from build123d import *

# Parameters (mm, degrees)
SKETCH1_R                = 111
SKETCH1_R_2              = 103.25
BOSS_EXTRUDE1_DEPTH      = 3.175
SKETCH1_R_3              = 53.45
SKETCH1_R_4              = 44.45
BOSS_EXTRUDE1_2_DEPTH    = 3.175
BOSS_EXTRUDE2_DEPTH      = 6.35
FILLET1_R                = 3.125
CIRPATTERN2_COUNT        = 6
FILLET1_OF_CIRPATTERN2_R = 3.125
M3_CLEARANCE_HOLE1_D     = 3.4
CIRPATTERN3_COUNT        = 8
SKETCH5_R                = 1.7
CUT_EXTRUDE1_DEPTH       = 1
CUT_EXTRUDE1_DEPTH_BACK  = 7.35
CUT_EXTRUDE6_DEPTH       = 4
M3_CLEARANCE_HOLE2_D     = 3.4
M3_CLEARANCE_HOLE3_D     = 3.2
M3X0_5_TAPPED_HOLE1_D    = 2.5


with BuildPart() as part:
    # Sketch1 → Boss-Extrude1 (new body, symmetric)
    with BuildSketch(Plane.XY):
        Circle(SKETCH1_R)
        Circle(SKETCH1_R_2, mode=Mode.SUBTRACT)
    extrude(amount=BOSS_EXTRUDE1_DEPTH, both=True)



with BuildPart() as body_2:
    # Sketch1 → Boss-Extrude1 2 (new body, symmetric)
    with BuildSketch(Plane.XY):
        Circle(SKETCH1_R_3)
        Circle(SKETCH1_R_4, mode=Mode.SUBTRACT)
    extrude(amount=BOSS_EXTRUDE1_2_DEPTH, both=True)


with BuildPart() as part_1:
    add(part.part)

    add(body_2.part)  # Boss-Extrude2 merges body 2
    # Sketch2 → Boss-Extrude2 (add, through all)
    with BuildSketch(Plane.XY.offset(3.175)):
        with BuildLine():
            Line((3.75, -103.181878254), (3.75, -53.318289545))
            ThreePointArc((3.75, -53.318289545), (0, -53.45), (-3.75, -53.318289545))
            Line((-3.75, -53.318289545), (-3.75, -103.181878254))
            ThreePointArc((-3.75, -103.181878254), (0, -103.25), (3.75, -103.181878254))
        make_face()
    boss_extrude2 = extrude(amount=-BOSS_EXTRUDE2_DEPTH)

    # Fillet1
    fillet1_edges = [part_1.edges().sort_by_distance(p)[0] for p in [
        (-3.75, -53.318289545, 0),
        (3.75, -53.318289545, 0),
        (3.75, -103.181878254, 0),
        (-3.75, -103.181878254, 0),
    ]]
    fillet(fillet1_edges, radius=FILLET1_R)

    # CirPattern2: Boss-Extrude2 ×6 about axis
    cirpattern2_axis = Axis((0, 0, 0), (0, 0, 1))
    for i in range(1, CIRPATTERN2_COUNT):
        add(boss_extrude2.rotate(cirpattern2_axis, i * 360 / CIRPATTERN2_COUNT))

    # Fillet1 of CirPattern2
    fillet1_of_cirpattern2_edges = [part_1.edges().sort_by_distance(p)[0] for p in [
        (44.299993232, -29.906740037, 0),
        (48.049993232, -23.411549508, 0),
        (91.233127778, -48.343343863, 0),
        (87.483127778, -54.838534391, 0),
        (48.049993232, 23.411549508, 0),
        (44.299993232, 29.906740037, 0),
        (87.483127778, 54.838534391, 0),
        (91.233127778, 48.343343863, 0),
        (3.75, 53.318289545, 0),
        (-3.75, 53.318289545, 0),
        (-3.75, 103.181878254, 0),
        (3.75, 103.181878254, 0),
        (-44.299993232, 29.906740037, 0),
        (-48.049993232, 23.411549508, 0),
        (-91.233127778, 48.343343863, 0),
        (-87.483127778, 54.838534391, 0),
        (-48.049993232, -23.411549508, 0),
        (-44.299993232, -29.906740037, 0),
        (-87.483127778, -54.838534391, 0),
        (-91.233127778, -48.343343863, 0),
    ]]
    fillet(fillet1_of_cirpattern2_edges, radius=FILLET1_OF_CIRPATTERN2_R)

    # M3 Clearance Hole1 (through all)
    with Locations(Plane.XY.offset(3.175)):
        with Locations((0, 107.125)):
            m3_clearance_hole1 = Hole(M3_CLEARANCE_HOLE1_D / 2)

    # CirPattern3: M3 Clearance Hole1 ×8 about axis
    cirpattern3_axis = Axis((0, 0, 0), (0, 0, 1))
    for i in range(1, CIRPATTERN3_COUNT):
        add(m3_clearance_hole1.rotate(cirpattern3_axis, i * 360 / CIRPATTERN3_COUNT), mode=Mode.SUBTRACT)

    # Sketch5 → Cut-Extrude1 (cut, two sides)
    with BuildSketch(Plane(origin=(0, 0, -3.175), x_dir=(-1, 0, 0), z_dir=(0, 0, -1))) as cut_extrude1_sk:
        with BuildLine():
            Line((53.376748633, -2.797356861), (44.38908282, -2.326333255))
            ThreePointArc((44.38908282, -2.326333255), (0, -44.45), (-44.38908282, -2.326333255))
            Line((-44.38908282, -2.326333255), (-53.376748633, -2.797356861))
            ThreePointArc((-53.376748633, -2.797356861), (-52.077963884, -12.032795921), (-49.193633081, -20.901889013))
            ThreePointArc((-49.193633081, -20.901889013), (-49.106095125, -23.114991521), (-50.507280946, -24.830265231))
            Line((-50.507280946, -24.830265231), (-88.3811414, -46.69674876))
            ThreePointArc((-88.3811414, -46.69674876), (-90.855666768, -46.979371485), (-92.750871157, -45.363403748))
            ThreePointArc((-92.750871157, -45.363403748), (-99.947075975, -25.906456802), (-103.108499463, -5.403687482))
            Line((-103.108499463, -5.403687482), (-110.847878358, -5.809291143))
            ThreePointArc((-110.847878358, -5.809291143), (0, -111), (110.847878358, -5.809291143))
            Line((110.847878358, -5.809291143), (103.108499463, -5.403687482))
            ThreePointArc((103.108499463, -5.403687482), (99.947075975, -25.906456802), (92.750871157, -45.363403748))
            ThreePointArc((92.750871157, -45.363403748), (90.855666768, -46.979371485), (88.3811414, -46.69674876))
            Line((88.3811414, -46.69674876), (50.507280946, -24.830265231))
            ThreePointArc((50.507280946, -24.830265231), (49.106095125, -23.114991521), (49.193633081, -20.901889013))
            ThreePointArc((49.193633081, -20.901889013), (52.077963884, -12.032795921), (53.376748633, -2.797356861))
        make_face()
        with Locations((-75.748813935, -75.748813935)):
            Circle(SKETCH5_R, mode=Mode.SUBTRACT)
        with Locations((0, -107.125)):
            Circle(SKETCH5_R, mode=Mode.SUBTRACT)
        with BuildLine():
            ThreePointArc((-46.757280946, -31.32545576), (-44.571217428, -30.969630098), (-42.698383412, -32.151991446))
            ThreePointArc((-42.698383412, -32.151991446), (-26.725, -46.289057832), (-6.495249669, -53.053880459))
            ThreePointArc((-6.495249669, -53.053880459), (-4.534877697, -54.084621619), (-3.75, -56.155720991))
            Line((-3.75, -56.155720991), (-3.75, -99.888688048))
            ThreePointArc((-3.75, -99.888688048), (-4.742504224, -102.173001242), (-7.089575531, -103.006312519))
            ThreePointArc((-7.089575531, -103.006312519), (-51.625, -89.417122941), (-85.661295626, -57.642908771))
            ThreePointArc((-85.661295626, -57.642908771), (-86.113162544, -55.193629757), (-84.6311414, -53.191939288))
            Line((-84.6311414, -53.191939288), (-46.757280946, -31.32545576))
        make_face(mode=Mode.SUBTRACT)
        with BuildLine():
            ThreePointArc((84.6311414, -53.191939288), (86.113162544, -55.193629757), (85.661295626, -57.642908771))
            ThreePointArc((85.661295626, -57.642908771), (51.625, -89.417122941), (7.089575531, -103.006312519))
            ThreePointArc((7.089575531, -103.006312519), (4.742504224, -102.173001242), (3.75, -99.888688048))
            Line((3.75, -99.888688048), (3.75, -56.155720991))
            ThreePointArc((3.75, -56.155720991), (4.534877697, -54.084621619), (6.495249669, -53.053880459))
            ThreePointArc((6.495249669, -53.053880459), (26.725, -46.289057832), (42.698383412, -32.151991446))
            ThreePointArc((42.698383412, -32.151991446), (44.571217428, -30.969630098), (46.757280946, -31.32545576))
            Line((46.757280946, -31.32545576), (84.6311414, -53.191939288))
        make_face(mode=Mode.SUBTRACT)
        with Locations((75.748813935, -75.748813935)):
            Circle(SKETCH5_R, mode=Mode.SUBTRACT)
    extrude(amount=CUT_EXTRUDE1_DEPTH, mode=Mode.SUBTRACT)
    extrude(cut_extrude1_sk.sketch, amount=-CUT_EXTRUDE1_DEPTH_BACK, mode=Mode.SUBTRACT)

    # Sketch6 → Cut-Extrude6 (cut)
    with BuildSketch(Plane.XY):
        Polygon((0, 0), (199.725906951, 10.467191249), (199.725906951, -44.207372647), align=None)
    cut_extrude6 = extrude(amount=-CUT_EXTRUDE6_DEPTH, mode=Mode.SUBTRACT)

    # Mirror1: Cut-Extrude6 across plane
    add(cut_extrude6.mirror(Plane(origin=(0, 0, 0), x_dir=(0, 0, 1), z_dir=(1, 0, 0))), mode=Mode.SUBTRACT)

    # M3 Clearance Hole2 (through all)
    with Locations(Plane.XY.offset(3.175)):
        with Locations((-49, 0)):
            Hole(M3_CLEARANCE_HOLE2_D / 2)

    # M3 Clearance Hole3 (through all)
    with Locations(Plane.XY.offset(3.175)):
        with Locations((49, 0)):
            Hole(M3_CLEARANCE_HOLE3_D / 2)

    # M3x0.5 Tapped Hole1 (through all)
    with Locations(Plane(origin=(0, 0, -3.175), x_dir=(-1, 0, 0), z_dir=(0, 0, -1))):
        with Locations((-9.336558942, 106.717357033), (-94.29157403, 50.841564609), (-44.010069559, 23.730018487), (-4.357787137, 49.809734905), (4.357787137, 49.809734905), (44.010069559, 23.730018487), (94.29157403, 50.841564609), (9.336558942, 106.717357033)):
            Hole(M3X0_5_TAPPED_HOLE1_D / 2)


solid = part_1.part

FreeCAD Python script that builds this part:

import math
import FreeCAD as App
import Part
import Sketcher

V = App.Vector
Q = App.Units.Quantity


def edges_at(feature, points):
    """Names of the edges that pass closest to the given points."""
    edges = feature.Shape.Edges
    near = lambda p: min(range(len(edges)), key=lambda i: edges[i].distToShape(Part.Vertex(*p))[0])
    return sorted({f"Edge{near(p) + 1}" for p in points})


def add_polygon(sketch, points):
    """Adds a closed chain of lines whose ends are joined by coincident constraints."""
    first, n = sketch.GeometryCount, len(points)
    for a, b in zip(points, points[1:] + points[:1]):
        sketch.addGeometry(Part.LineSegment(App.Vector(*a, 0), App.Vector(*b, 0)), False)
    for i in range(n):
        sketch.addConstraint(Sketcher.Constraint("Coincident", first + i, 2, first + (i + 1) % n, 1))

doc = App.newDocument("Part")
body = doc.addObject("PartDesign::Body", "Body")

sketch1 = doc.addObject("Sketcher::SketchObject", "Sketch")
body.addObject(sketch1)
sketch1.AttachmentSupport = (doc.XY_Plane, [""])
sketch1.MapMode = "FlatFace"
sketch1.addGeometry([
    Part.Circle(V(0, 0, 0), V(0, 0, 1), 111),
    Part.Circle(V(0, 0, 0), V(0, 0, 1), 103.25),
], False)
sketch1.addConstraint([
    Sketcher.Constraint("Coincident", 0, 3, -1, 1),
    Sketcher.Constraint("Coincident", 1, 3, -1, 1),
    Sketcher.Constraint("Diameter", 0, 222.0),
    Sketcher.Constraint("Diameter", 1, 206.5),
])
pad1 = doc.addObject("PartDesign::Pad", "Pad")
body.addObject(pad1)
pad1.Profile = sketch1
pad1.Length = 6.35
pad1.Midplane = True
body2 = doc.addObject("PartDesign::Body", "Body001")

sketch2 = doc.addObject("Sketcher::SketchObject", "Sketch001")
body2.addObject(sketch2)
sketch2.AttachmentSupport = (doc.getObject("XY_Plane001"), [""])
sketch2.MapMode = "FlatFace"
sketch2.addGeometry([
    Part.Circle(V(0, 0, 0), V(0, 0, 1), 53.45),
    Part.Circle(V(0, 0, 0), V(0, 0, 1), 44.45),
], False)
sketch2.addConstraint([
    Sketcher.Constraint("Coincident", 0, 3, -1, 1),
    Sketcher.Constraint("Coincident", 1, 3, -1, 1),
    Sketcher.Constraint("Diameter", 0, 106.9),
    Sketcher.Constraint("Diameter", 1, 88.9),
])
pad2 = doc.addObject("PartDesign::Pad", "Pad001")
body2.addObject(pad2)
pad2.Profile = sketch2
pad2.Length = 6.35
pad2.Midplane = True
body.AllowCompound = True
doc.recompute()

boolean = doc.addObject("PartDesign::Boolean", "Boolean")
body.addObject(boolean)
boolean.Type = "Fuse"
boolean.addObjects([body2])

sketch3 = doc.addObject("Sketcher::SketchObject", "Sketch002")
body.addObject(sketch3)
sketch3.AttachmentSupport = (doc.XY_Plane, [""])
sketch3.MapMode = "FlatFace"
sketch3.AttachmentOffset = App.Placement(V(0, 0, 3.175), App.Rotation())
sketch3.addGeometry([
    Part.LineSegment(V(3.75, -103.181878, 0), V(3.75, -53.31829, 0)),
    Part.ArcOfCircle(Part.Circle(V(0, 0, 0), V(0, 0, 1), 53.45), math.radians(-94.023121), math.radians(-85.976879)),
    Part.LineSegment(V(-3.75, -53.31829, 0), V(-3.75, -103.181878, 0)),
    Part.ArcOfCircle(Part.Circle(V(0, 0, 0), V(0, 0, 1), 103.25), math.radians(-92.081418), math.radians(-87.918582)),
], False)
sketch3.addConstraint([
    Sketcher.Constraint("Coincident", 0, 2, 1, 2),
    Sketcher.Constraint("Coincident", 1, 1, 2, 1),
    Sketcher.Constraint("Coincident", 2, 2, 3, 1),
    Sketcher.Constraint("Coincident", 3, 2, 0, 1),
    Sketcher.Constraint("Vertical", 0),
    Sketcher.Constraint("Vertical", 2),
    Sketcher.Constraint("Coincident", 1, 3, -1, 1),
    Sketcher.Constraint("Coincident", 3, 3, -1, 1),
    Sketcher.Constraint("Horizontal", 0, 2, 1, 1),
    Sketcher.Constraint("Radius", 1, 53.45),
    Sketcher.Constraint("Radius", 3, 103.25),
    Sketcher.Constraint("DistanceX", 1, 1, 0, 2, 7.5),
])
pad3 = doc.addObject("PartDesign::Pad", "Pad002")
body.addObject(pad3)
pad3.Profile = sketch3
pad3.Length = 6.35
pad3.Reversed = True
doc.recompute()

fillet = doc.addObject("PartDesign::Fillet", "Fillet")
body.addObject(fillet)
fillet.Base = (pad3, edges_at(pad3, [
    (-3.75, -53.318, 0),
    (3.75, -53.318, 0),
    (3.75, -103.182, 0),
    (-3.75, -103.182, 0),
]))
fillet.Radius = 3.125
doc.recompute()

polarpattern = doc.addObject("PartDesign::PolarPattern", "PolarPattern")
body.addObject(polarpattern)
polarpattern.Originals = [pad3]
polarpattern.Axis = (doc.Z_Axis, [""])
polarpattern.Angle = 360
polarpattern.Occurrences = 6
body.Tip = polarpattern
doc.recompute()

fillet2 = doc.addObject("PartDesign::Fillet", "Fillet001")
body.addObject(fillet2)
fillet2.Base = (polarpattern, edges_at(polarpattern, [
    (44.3, -29.907, 0),
    (48.05, -23.412, 0),
    (91.233, -48.343, 0),
    (87.483, -54.839, 0),
    (48.05, 23.412, 0),
    (44.3, 29.907, 0),
    (87.483, 54.839, 0),
    (91.233, 48.343, 0),
    (3.75, 53.318, 0),
    (-3.75, 53.318, 0),
    (-3.75, 103.182, 0),
    (3.75, 103.182, 0),
    (-44.3, 29.907, 0),
    (-48.05, 23.412, 0),
    (-91.233, 48.343, 0),
    (-87.483, 54.839, 0),
    (-48.05, -23.412, 0),
    (-44.3, -29.907, 0),
    (-87.483, -54.839, 0),
    (-91.233, -48.343, 0),
]))
fillet2.Radius = 3.125

sketch4 = doc.addObject("Sketcher::SketchObject", "Sketch003")
body.addObject(sketch4)
sketch4.AttachmentSupport = (doc.XY_Plane, [""])
sketch4.MapMode = "FlatFace"
sketch4.AttachmentOffset = App.Placement(V(0, 0, 3.175), App.Rotation())
sketch4.addGeometry(Part.Circle(V(0, 107.125, 0), V(0, 0, 1), 1.7), False)
sketch4.addConstraint([
    Sketcher.Constraint("PointOnObject", 0, 3, -2),
    Sketcher.Constraint("Diameter", 0, 3.4),
    Sketcher.Constraint("DistanceY", -1, 1, 0, 3, 107.125),
])
doc.recompute()
hole = doc.addObject("PartDesign::Hole", "Hole")
body.addObject(hole)
hole.Profile = sketch4
hole.ThreadType = "None"
hole.Diameter = 3.4
hole.DepthType = "ThroughAll"
doc.recompute()

polarpattern2 = doc.addObject("PartDesign::PolarPattern", "PolarPattern001")
body.addObject(polarpattern2)
polarpattern2.Originals = [hole]
polarpattern2.Axis = (doc.Z_Axis, [""])
polarpattern2.Angle = 360
polarpattern2.Occurrences = 8
body.Tip = polarpattern2

sketch5 = doc.addObject("Sketcher::SketchObject", "Sketch004")
body.addObject(sketch5)
sketch5.AttachmentSupport = (doc.XY_Plane, [""])
sketch5.MapMode = "FlatFace"
sketch5.AttachmentOffset = App.Placement(V(0, 0, -3.175), App.Rotation())
sketch5.addGeometry([
    Part.LineSegment(V(-53.376749, -2.797357, 0), V(-44.389083, -2.326333, 0)),
    Part.ArcOfCircle(Part.Circle(V(0, 0, 0), V(0, 0, 1), 44.45), math.radians(-177), math.radians(-3)),
    Part.LineSegment(V(44.389083, -2.326333, 0), V(53.376749, -2.797357, 0)),
    Part.ArcOfCircle(Part.Circle(V(0, 0, 0), V(0, 0, 1), 53.45), math.radians(-23.02016), math.radians(-3)),
    Part.ArcOfCircle(Part.Circle(V(52.069781, -22.123936, 0), V(0, 0, 1), 3.125), math.radians(156.97984), math.radians(240)),
    Part.LineSegment(V(50.507281, -24.830265, 0), V(88.381141, -46.696749, 0)),
    Part.ArcOfCircle(Part.Circle(V(89.943641, -43.990419, 0), V(0, 0, 1), 3.125), math.radians(-120), math.radians(-26.062735)),
    Part.ArcOfCircle(Part.Circle(V(0, 0, 0), V(0, 0, 1), 103.25), math.radians(-26.062735), math.radians(-3)),
    Part.LineSegment(V(103.108499, -5.403687, 0), V(110.847878, -5.809291, 0)),
    Part.ArcOfCircle(Part.Circle(V(0, 0, 0), V(0, 0, 1), 111), math.radians(-177), math.radians(-3)),
    Part.LineSegment(V(-110.847878, -5.809291, 0), V(-103.108499, -5.403687, 0)),
    Part.ArcOfCircle(Part.Circle(V(0, 0, 0), V(0, 0, 1), 103.25), math.radians(-177), math.radians(-153.937265)),
    Part.ArcOfCircle(Part.Circle(V(-89.943641, -43.990419, 0), V(0, 0, 1), 3.125), math.radians(-153.937265), math.radians(-60)),
    Part.LineSegment(V(-88.381141, -46.696749, 0), V(-50.507281, -24.830265, 0)),
    Part.ArcOfCircle(Part.Circle(V(-52.069781, -22.123936, 0), V(0, 0, 1), 3.125), math.radians(-60), math.radians(23.02016)),
    Part.ArcOfCircle(Part.Circle(V(0, 0, 0), V(0, 0, 1), 53.45), math.radians(-177), math.radians(-156.97984)),
    Part.Circle(V(75.748814, -75.748814, 0), V(0, 0, 1), 1.7),
    Part.Circle(V(0, -107.125, 0), V(0, 0, 1), 1.7),
    Part.Circle(V(-75.748814, -75.748814, 0), V(0, 0, 1), 1.7),
    Part.LineSegment(V(84.631141, -53.191939, 0), V(46.757281, -31.325456, 0)),
    Part.ArcOfCircle(Part.Circle(V(45.194781, -34.031785, 0), V(0, 0, 1), 3.125), math.radians(60), math.radians(143.02016)),
    Part.ArcOfCircle(Part.Circle(V(0, 0, 0), V(0, 0, 1), 53.45), math.radians(-83.02016), math.radians(-36.97984)),
    Part.ArcOfCircle(Part.Circle(V(6.875, -56.155721, 0), V(0, 0, 1), 3.125), math.radians(96.97984), math.radians(180)),
    Part.LineSegment(V(3.75, -56.155721, 0), V(3.75, -99.888688, 0)),
    Part.ArcOfCircle(Part.Circle(V(6.875, -99.888688, 0), V(0, 0, 1), 3.125), math.radians(180), math.radians(273.937265)),
    Part.ArcOfCircle(Part.Circle(V(0, 0, 0), V(0, 0, 1), 103.25), math.radians(-86.062735), math.radians(-33.937265)),
    Part.ArcOfCircle(Part.Circle(V(83.068641, -55.898269, 0), V(0, 0, 1), 3.125), math.radians(-33.937265), math.radians(60)),
    Part.LineSegment(V(-46.757281, -31.325456, 0), V(-84.631141, -53.191939, 0)),
    Part.ArcOfCircle(Part.Circle(V(-83.068641, -55.898269, 0), V(0, 0, 1), 3.125), math.radians(120), math.radians(213.937265)),
    Part.ArcOfCircle(Part.Circle(V(0, 0, 0), V(0, 0, 1), 103.25), math.radians(-146.062735), math.radians(-93.937265)),
    Part.ArcOfCircle(Part.Circle(V(-6.875, -99.888688, 0), V(0, 0, 1), 3.125), math.radians(-93.937265), math.radians(0)),
    Part.LineSegment(V(-3.75, -99.888688, 0), V(-3.75, -56.155721, 0)),
    Part.ArcOfCircle(Part.Circle(V(-6.875, -56.155721, 0), V(0, 0, 1), 3.125), math.radians(0), math.radians(83.02016)),
    Part.ArcOfCircle(Part.Circle(V(0, 0, 0), V(0, 0, 1), 53.45), math.radians(-143.02016), math.radians(-96.97984)),
    Part.ArcOfCircle(Part.Circle(V(-45.194781, -34.031785, 0), V(0, 0, 1), 3.125), math.radians(36.97984), math.radians(120)),
], False)
sketch5.addConstraint([
    Sketcher.Constraint("Coincident", 0, 2, 1, 1),
    Sketcher.Constraint("Coincident", 1, 2, 2, 1),
    Sketcher.Constraint("Coincident", 2, 2, 3, 2),
    Sketcher.Constraint("Tangent", 3, 1, 4, 1),
    Sketcher.Constraint("Tangent", 4, 2, 5, 1),
    Sketcher.Constraint("Tangent", 5, 2, 6, 1),
    Sketcher.Constraint("Tangent", 6, 2, 7, 1),
    Sketcher.Constraint("Coincident", 7, 2, 8, 1),
    Sketcher.Constraint("Coincident", 8, 2, 9, 2),
    Sketcher.Constraint("Coincident", 9, 1, 10, 1),
    Sketcher.Constraint("Coincident", 10, 2, 11, 1),
    Sketcher.Constraint("Tangent", 11, 2, 12, 1),
    Sketcher.Constraint("Tangent", 12, 2, 13, 1),
    Sketcher.Constraint("Tangent", 13, 2, 14, 1),
    Sketcher.Constraint("Tangent", 14, 2, 15, 2),
    Sketcher.Constraint("Coincident", 15, 1, 0, 1),
    Sketcher.Constraint("Tangent", 19, 2, 20, 1),
    Sketcher.Constraint("Tangent", 20, 2, 21, 2),
    Sketcher.Constraint("Tangent", 21, 1, 22, 1),
    Sketcher.Constraint("Tangent", 22, 2, 23, 1),
    Sketcher.Constraint("Tangent", 23, 2, 24, 1),
    Sketcher.Constraint("Tangent", 24, 2, 25, 1),
    Sketcher.Constraint("Tangent", 25, 2, 26, 1),
    Sketcher.Constraint("Tangent", 26, 2, 19, 1),
    Sketcher.Constraint("Tangent", 27, 2, 28, 1),
    Sketcher.Constraint("Tangent", 28, 2, 29, 1),
    Sketcher.Constraint("Tangent", 29, 2, 30, 1),
    Sketcher.Constraint("Tangent", 30, 2, 31, 1),
    Sketcher.Constraint("Tangent", 31, 2, 32, 1),
    Sketcher.Constraint("Tangent", 32, 2, 33, 2),
    Sketcher.Constraint("Tangent", 33, 1, 34, 1),
    Sketcher.Constraint("Tangent", 34, 2, 27, 1),
    Sketcher.Constraint("Vertical", 23),
    Sketcher.Constraint("Vertical", 31),
    Sketcher.Constraint("Coincident", 1, 3, -1, 1),
    Sketcher.Constraint("Coincident", 3, 3, -1, 1),
    Sketcher.Constraint("Coincident", 7, 3, -1, 1),
    Sketcher.Constraint("Coincident", 9, 3, -1, 1),
    Sketcher.Constraint("Coincident", 11, 3, -1, 1),
    Sketcher.Constraint("Coincident", 15, 3, -1, 1),
    Sketcher.Constraint("Coincident", 21, 3, -1, 1),
    Sketcher.Constraint("Coincident", 25, 3, -1, 1),
    Sketcher.Constraint("Coincident", 29, 3, -1, 1),
    Sketcher.Constraint("Coincident", 33, 3, -1, 1),
    Sketcher.Constraint("Equal", 4, 6),
    Sketcher.Constraint("Equal", 7, 11),
    Sketcher.Constraint("Equal", 6, 12),
    Sketcher.Constraint("Equal", 12, 14),
    Sketcher.Constraint("Equal", 3, 15),
    Sketcher.Constraint("Equal", 16, 17),
    Sketcher.Constraint("Equal", 17, 18),
    Sketcher.Constraint("Equal", 14, 20),
    Sketcher.Constraint("Equal", 15, 21),
    Sketcher.Constraint("Equal", 20, 22),
    Sketcher.Constraint("Equal", 22, 24),
    Sketcher.Constraint("Equal", 11, 25),
    Sketcher.Constraint("Equal", 24, 26),
    Sketcher.Constraint("Equal", 26, 28),
    Sketcher.Constraint("Equal", 25, 29),
    Sketcher.Constraint("Equal", 28, 30),
    Sketcher.Constraint("Equal", 30, 32),
    Sketcher.Constraint("Equal", 21, 33),
    Sketcher.Constraint("Equal", 32, 34),
    Sketcher.Constraint("Symmetric", 16, 3, 18, 3, -2),
    Sketcher.Constraint("Symmetric", 5, 2, 12, 2, -2),
    Sketcher.Constraint("Symmetric", 26, 2, 27, 2, -2),
    Sketcher.Constraint("PointOnObject", 17, 3, -2),
    Sketcher.Constraint("Parallel", 2, 8),
    Sketcher.Constraint("Parallel", 0, 10),
    Sketcher.Constraint("Parallel", 5, 19),
    Sketcher.Constraint("Horizontal", 24, 3, 30, 3),
    Sketcher.Constraint("Horizontal", 0, 2, 1, 2),
    Sketcher.Constraint("Horizontal", 8, 2, 9, 1),
    Sketcher.Constraint("Horizontal", 7, 2, 10, 2),
    Sketcher.Constraint("Equal", 13, 19),
    Sketcher.Constraint("Radius", 9, 111.0),
    Sketcher.Constraint("Diameter", 16, 3.4),
    Sketcher.Constraint("Angle", 0, Q("3 deg")),
    Sketcher.Constraint("Angle", 5, Q("-30 deg")),
    Sketcher.Constraint("Radius", 1, 44.45),
    Sketcher.Constraint("Radius", 3, 53.45),
    Sketcher.Constraint("Radius", 7, 103.25),
    Sketcher.Constraint("Radius", 4, 3.125),
    Sketcher.Constraint("DistanceX", 30, 2, 23, 2, 7.5),
    Sketcher.Constraint("DistanceX", 19, 2, 4, 2, 3.75),
    Sketcher.Constraint("DistanceY", 17, 3, -1, 1, 107.125),
    Sketcher.Constraint("DistanceX", -1, 1, 7, 2, 103.108499),
    Sketcher.Constraint("DistanceX", 14, 3, 0, 2, 7.680698),
    Sketcher.Constraint("DistanceY", 16, 3, 4, 3, 53.624878),
    Sketcher.Constraint("DistanceX", 16, 3, 25, 2, 9.912482),
])
pocket1 = doc.addObject("PartDesign::Pocket", "Pocket")
body.addObject(pocket1)
pocket1.Profile = sketch5
pocket1.Type = "ThroughAll"
pocket1.Midplane = True

sketch6 = doc.addObject("Sketcher::SketchObject", "Sketch005")
body.addObject(sketch6)
sketch6.AttachmentSupport = (doc.XY_Plane, [""])
sketch6.MapMode = "FlatFace"
add_polygon(sketch6, [(199.725907, 10.467191), (0, 0), (199.725907, -44.207373)])
sketch6.addConstraint([
    Sketcher.Constraint("Vertical", 2),
    Sketcher.Constraint("Coincident", 0, 2, -1, 1),
    Sketcher.Constraint("Angle", 0, Q("-177 deg")),
    Sketcher.Constraint("Distance", 0, 200.0),
    Sketcher.Constraint("DistanceY", 2, 1, 2, 2, 54.674564),
])
pocket2 = doc.addObject("PartDesign::Pocket", "Pocket001")
body.addObject(pocket2)
pocket2.Profile = sketch6
pocket2.Length = 4
doc.recompute()

mirrored = doc.addObject("PartDesign::Mirrored", "Mirrored")
body.addObject(mirrored)
mirrored.Originals = [pocket2]
mirrored.MirrorPlane = (doc.YZ_Plane, [""])
body.Tip = mirrored

sketch7 = doc.addObject("Sketcher::SketchObject", "Sketch006")
body.addObject(sketch7)
sketch7.AttachmentSupport = (doc.XY_Plane, [""])
sketch7.MapMode = "FlatFace"
sketch7.AttachmentOffset = App.Placement(V(0, 0, 3.175), App.Rotation())
sketch7.addGeometry(Part.Circle(V(-49, 0, 0), V(0, 0, 1), 1.7), False)
sketch7.addConstraint([
    Sketcher.Constraint("PointOnObject", 0, 3, -1),
    Sketcher.Constraint("Diameter", 0, 3.4),
    Sketcher.Constraint("DistanceX", 0, 3, -1, 1, 49.0),
])
doc.recompute()
hole2 = doc.addObject("PartDesign::Hole", "Hole001")
body.addObject(hole2)
hole2.Profile = sketch7
hole2.ThreadType = "None"
hole2.Diameter = 3.4
hole2.DepthType = "ThroughAll"

sketch8 = doc.addObject("Sketcher::SketchObject", "Sketch007")
body.addObject(sketch8)
sketch8.AttachmentSupport = (doc.XY_Plane, [""])
sketch8.MapMode = "FlatFace"
sketch8.AttachmentOffset = App.Placement(V(0, 0, 3.175), App.Rotation())
sketch8.addGeometry(Part.Circle(V(49, 0, 0), V(0, 0, 1), 1.6), False)
sketch8.addConstraint([
    Sketcher.Constraint("PointOnObject", 0, 3, -1),
    Sketcher.Constraint("Diameter", 0, 3.2),
    Sketcher.Constraint("DistanceX", -1, 1, 0, 3, 49.0),
])
doc.recompute()
hole3 = doc.addObject("PartDesign::Hole", "Hole002")
body.addObject(hole3)
hole3.Profile = sketch8
hole3.ThreadType = "None"
hole3.Diameter = 3.2
hole3.DepthType = "ThroughAll"

sketch9 = doc.addObject("Sketcher::SketchObject", "Sketch008")
body.addObject(sketch9)
sketch9.AttachmentSupport = (doc.XY_Plane, [""])
sketch9.MapMode = "FlatFace"
sketch9.AttachmentOffset = App.Placement(V(0, 0, -3.175), App.Rotation())
sketch9.addGeometry([
    Part.Circle(V(9.336559, 106.717357, 0), V(0, 0, 1), 1.25),
    Part.Circle(V(94.291574, 50.841565, 0), V(0, 0, 1), 1.25),
    Part.Circle(V(44.01007, 23.730018, 0), V(0, 0, 1), 1.25),
    Part.Circle(V(4.357787, 49.809735, 0), V(0, 0, 1), 1.25),
    Part.Circle(V(-4.357787, 49.809735, 0), V(0, 0, 1), 1.25),
    Part.Circle(V(-44.01007, 23.730018, 0), V(0, 0, 1), 1.25),
    Part.Circle(V(-94.291574, 50.841565, 0), V(0, 0, 1), 1.25),
    Part.Circle(V(-9.336559, 106.717357, 0), V(0, 0, 1), 1.25),
], False)
sketch9.addConstraint([
    Sketcher.Constraint("Equal", 0, 1),
    Sketcher.Constraint("Equal", 1, 2),
    Sketcher.Constraint("Equal", 2, 3),
    Sketcher.Constraint("Equal", 3, 4),
    Sketcher.Constraint("Equal", 4, 5),
    Sketcher.Constraint("Equal", 5, 6),
    Sketcher.Constraint("Equal", 6, 7),
    Sketcher.Constraint("Symmetric", 3, 3, 4, 3, -2),
    Sketcher.Constraint("Symmetric", 2, 3, 5, 3, -2),
    Sketcher.Constraint("Symmetric", 1, 3, 6, 3, -2),
    Sketcher.Constraint("Symmetric", 0, 3, 7, 3, -2),
    Sketcher.Constraint("Diameter", 0, 2.5),
    Sketcher.Constraint("DistanceX", -1, 1, 0, 3, 9.336559),
    Sketcher.Constraint("DistanceX", -1, 1, 2, 3, 44.01007),
    Sketcher.Constraint("DistanceY", -1, 1, 2, 3, 23.730018),
    Sketcher.Constraint("DistanceY", 2, 3, 0, 3, 82.987339),
    Sketcher.Constraint("DistanceX", 3, 3, 0, 3, 4.978772),
    Sketcher.Constraint("DistanceY", 3, 3, 1, 3, 1.03183),
    Sketcher.Constraint("DistanceX", 4, 3, 1, 3, 98.649361),
    Sketcher.Constraint("DistanceY", -1, 1, 1, 3, 50.841565),
])
doc.recompute()
hole4 = doc.addObject("PartDesign::Hole", "Hole003")
body.addObject(hole4)
hole4.Profile = sketch9
hole4.ThreadType = "None"
hole4.Diameter = 2.5
hole4.DepthType = "ThroughAll"
hole4.Reversed = True

doc.recompute()
